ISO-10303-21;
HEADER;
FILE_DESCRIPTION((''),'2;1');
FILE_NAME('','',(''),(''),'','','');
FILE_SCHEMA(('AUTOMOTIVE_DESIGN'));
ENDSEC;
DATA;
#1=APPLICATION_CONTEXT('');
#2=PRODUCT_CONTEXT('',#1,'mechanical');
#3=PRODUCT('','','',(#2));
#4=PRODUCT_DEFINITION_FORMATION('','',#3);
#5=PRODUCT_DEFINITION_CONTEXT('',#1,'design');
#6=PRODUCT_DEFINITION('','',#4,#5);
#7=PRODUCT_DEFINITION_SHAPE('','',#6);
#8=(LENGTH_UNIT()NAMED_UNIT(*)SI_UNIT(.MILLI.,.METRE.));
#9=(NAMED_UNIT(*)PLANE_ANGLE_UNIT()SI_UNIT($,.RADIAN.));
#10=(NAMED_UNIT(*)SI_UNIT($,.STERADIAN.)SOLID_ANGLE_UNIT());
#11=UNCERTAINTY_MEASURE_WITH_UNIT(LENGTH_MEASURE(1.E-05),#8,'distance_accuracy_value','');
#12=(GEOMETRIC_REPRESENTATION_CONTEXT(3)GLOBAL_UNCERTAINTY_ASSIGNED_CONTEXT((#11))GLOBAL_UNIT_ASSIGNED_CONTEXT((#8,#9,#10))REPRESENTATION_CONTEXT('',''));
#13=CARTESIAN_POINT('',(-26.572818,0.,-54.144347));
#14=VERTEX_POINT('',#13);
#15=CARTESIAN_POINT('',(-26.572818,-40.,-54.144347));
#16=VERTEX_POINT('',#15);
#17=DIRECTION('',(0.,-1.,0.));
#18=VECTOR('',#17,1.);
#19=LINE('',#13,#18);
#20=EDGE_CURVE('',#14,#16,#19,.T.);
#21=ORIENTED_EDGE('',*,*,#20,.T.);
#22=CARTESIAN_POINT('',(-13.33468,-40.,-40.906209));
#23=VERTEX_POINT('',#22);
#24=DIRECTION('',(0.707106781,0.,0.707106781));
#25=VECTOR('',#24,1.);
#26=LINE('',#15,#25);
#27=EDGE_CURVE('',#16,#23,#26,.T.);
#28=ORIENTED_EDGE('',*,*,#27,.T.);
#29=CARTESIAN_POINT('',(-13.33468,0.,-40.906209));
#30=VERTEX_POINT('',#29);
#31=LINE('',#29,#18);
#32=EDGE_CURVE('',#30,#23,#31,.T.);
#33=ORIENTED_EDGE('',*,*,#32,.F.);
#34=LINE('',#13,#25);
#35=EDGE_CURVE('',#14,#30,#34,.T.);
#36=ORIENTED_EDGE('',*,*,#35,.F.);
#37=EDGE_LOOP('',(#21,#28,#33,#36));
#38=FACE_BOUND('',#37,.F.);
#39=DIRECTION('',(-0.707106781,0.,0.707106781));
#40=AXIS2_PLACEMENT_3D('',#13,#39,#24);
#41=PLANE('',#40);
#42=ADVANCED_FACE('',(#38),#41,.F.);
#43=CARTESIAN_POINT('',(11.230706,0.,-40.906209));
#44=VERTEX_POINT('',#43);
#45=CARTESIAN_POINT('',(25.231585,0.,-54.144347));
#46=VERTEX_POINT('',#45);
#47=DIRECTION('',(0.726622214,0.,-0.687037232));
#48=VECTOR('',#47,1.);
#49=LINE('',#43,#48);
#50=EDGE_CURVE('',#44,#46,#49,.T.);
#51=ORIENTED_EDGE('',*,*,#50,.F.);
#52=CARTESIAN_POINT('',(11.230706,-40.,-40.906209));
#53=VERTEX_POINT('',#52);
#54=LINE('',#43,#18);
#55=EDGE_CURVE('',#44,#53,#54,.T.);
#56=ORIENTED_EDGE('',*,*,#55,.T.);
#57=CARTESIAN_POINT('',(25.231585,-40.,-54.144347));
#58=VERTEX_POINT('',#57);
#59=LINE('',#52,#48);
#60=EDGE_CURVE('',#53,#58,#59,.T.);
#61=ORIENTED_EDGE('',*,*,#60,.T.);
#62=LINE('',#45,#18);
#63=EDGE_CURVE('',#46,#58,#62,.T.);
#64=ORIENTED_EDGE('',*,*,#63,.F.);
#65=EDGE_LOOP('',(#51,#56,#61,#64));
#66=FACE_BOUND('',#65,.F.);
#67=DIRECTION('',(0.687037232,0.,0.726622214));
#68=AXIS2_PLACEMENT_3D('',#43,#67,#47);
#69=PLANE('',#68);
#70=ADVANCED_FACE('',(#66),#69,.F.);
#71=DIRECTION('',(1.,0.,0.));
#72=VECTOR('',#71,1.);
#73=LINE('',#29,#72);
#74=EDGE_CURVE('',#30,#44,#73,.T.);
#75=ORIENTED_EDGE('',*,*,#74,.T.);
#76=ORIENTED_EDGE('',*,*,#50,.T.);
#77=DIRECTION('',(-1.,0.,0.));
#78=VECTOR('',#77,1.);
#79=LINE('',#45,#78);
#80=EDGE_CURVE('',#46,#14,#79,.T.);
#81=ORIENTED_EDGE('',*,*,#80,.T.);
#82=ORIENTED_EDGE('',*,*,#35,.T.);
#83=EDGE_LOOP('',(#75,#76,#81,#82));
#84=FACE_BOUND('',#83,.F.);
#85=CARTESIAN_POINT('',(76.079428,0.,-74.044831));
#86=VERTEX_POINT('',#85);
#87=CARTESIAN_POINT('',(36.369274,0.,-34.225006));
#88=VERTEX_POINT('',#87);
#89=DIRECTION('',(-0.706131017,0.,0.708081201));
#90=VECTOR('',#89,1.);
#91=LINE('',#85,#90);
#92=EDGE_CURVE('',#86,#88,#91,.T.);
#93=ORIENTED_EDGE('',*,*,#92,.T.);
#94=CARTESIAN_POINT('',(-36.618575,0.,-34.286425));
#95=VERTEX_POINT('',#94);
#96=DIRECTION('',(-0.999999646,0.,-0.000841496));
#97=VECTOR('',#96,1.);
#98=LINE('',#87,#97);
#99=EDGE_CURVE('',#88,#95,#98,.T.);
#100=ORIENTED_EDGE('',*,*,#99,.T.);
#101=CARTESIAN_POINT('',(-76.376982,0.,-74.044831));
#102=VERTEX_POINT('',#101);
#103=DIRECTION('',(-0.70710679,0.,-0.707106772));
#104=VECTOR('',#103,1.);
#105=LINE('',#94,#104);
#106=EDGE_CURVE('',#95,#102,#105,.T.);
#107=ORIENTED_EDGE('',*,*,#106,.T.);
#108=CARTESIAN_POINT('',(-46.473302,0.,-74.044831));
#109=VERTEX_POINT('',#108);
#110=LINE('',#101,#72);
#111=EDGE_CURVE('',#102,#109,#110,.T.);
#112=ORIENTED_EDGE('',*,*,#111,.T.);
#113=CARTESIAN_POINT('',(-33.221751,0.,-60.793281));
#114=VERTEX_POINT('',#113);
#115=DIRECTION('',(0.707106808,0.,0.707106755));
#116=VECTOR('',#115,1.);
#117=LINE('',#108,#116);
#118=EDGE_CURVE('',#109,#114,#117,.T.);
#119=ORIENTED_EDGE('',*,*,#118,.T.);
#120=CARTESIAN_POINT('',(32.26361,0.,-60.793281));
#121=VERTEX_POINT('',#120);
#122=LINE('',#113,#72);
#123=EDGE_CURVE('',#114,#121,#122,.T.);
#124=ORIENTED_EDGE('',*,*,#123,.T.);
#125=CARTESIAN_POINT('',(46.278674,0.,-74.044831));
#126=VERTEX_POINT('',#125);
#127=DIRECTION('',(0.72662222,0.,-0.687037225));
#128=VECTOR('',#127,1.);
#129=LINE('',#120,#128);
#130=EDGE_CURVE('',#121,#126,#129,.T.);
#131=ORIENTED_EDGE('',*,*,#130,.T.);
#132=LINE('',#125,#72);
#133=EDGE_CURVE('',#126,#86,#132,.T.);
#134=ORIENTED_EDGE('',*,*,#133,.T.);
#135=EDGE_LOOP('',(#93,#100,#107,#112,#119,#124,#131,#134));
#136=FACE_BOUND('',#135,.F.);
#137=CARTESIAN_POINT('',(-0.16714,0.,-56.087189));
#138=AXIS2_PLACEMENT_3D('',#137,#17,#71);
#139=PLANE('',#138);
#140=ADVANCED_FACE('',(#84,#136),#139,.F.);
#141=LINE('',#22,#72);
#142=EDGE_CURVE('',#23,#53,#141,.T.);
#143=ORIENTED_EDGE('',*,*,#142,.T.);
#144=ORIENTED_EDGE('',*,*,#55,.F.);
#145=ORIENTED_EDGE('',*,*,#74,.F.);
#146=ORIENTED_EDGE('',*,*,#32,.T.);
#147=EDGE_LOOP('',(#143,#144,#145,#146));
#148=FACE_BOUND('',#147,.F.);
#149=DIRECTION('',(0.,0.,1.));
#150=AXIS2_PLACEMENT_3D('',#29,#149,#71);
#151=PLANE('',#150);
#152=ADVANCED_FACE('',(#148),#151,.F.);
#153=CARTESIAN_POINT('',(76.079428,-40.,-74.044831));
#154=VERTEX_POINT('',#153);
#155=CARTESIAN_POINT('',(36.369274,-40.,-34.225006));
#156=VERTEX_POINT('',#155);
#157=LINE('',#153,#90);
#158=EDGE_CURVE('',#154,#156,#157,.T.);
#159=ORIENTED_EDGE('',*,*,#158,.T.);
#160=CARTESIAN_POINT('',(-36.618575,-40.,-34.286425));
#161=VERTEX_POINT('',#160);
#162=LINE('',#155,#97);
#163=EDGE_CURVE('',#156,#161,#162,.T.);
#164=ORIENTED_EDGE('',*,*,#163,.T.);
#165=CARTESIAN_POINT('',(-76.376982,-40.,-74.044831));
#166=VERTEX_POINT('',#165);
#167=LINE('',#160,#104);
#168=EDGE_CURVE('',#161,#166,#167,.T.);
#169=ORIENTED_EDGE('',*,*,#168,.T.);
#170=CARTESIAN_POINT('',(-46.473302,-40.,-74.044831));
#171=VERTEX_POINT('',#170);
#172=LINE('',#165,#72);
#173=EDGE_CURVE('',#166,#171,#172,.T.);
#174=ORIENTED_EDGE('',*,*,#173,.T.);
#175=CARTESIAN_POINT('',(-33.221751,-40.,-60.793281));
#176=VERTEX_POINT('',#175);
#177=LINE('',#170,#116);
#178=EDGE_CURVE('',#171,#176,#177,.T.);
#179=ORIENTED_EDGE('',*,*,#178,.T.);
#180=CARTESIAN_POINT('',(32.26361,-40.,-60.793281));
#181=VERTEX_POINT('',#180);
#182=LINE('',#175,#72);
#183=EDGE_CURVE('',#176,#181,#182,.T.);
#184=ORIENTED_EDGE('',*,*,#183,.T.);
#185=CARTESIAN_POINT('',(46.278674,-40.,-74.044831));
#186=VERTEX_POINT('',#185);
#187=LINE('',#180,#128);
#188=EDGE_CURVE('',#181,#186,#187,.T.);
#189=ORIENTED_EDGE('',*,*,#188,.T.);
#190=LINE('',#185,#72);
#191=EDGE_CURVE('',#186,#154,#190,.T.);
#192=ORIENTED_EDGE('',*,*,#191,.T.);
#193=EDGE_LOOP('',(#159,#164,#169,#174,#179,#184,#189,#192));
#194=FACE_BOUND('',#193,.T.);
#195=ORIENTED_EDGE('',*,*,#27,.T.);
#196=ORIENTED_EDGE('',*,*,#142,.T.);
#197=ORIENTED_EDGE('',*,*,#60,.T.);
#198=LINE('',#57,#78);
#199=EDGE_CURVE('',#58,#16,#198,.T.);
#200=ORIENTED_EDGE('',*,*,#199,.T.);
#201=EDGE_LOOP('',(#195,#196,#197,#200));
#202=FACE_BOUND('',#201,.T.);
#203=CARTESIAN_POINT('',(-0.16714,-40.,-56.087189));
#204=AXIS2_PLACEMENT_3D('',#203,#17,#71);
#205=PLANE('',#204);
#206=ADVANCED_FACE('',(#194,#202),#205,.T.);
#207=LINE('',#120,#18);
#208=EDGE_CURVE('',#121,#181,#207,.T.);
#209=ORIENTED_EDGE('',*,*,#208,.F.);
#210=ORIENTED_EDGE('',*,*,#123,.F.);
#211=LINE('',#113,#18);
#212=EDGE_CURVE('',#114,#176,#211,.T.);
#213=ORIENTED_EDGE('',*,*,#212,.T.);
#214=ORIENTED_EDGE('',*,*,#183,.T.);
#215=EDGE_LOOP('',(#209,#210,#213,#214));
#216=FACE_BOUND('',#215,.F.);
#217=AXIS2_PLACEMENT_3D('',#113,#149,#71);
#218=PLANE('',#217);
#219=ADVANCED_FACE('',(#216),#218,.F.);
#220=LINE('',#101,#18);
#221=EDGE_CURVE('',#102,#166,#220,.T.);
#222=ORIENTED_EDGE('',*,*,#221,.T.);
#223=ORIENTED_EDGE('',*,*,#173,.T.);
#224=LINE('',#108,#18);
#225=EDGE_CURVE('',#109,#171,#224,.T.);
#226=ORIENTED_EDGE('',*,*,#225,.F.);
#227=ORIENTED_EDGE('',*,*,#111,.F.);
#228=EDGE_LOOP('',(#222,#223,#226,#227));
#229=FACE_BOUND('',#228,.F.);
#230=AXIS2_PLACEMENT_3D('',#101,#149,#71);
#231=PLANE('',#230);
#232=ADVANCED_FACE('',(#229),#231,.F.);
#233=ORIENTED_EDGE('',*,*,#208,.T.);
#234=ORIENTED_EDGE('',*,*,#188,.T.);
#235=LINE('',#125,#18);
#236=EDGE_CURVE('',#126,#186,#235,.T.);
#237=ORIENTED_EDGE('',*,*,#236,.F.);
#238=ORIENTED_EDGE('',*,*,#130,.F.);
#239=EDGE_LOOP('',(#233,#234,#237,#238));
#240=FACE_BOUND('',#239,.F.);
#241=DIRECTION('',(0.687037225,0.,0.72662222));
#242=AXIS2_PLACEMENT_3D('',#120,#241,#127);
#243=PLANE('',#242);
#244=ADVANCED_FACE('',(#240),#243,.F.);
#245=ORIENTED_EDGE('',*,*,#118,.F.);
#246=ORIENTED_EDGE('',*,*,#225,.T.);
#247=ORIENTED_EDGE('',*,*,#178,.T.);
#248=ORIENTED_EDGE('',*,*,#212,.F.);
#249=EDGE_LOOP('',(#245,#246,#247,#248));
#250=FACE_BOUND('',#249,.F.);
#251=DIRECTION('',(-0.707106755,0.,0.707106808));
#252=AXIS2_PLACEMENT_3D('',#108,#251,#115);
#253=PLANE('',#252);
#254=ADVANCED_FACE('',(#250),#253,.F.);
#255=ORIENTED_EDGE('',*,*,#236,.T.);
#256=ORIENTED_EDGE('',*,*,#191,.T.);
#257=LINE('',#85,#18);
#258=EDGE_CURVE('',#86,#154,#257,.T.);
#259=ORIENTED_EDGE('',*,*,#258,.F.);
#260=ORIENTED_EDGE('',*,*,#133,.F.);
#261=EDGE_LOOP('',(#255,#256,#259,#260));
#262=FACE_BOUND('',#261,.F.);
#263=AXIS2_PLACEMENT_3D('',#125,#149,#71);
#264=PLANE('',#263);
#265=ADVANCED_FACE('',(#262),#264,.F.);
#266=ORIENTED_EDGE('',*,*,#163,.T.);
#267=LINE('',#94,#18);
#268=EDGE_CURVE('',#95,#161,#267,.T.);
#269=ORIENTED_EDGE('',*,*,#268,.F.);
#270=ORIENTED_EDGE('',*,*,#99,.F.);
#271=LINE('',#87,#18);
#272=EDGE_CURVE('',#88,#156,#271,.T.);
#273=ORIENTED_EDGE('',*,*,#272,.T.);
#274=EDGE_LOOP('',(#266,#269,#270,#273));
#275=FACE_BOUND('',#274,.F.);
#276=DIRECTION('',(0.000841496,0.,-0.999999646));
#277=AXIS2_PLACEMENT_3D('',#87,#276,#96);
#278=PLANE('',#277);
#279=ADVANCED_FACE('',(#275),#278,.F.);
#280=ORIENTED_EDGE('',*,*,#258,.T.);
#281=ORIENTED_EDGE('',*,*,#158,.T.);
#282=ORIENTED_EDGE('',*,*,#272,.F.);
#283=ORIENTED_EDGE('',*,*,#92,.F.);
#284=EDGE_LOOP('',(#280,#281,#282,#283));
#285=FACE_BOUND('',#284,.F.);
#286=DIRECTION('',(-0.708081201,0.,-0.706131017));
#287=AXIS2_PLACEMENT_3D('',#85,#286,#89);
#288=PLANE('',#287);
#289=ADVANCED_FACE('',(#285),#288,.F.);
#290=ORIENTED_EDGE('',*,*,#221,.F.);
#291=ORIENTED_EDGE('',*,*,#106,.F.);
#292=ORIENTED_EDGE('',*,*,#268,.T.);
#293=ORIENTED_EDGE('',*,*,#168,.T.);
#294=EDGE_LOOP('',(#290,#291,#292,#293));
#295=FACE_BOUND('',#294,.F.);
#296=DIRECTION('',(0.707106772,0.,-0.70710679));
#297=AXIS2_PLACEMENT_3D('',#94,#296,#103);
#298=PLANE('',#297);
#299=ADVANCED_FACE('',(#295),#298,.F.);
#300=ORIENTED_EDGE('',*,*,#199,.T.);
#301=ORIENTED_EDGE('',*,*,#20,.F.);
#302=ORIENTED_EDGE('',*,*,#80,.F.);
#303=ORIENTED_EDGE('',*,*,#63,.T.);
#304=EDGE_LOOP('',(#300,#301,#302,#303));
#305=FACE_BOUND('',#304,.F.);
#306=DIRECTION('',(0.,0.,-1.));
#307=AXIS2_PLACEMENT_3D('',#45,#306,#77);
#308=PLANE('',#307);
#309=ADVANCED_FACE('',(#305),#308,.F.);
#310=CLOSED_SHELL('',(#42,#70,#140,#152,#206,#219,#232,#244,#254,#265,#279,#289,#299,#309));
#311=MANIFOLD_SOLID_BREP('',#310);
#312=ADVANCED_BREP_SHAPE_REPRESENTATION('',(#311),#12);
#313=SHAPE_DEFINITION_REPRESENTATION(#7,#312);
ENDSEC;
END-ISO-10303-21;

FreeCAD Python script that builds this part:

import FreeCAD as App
import Part
import Sketcher
from FreeCAD import Vector
Q = App.Units.Quantity


def add_polygon(sketch, points):
    """Adds a closed chain of lines whose ends are joined by coincident constraints."""
    first, n = sketch.GeometryCount, len(points)
    for a, b in zip(points, points[1:] + points[:1]):
        sketch.addGeometry(Part.LineSegment(App.Vector(*a, 0), App.Vector(*b, 0)), False)
    for i in range(n):
        sketch.addConstraint(Sketcher.Constraint("Coincident", first + i, 2, first + (i + 1) % n, 1))

doc = App.newDocument("Part")
params = doc.addObject("Spreadsheet::Sheet", "Params")
for row, (alias, value) in enumerate([
    ("pad1_length", "40 mm"),
], start=1):
    params.set(f"A{row}", alias)
    params.set(f"B{row}", "=" + value)
    params.setAlias(f"B{row}", alias)

body = doc.addObject("PartDesign::Body", "Body")

# Sketch on XZ plane
sketch1 = body.newObject("Sketcher::SketchObject", "Sketch")
sketch1.AttachmentSupport = (doc.getObject("XZ_Plane"), [""])
sketch1.MapMode = "FlatFace"
add_polygon(sketch1, [(46.278674, -74.044831), (76.079428, -74.044831), (36.369274, -34.225006), (-36.618575, -34.286425), (-76.376982, -74.044831), (-46.473302, -74.044831), (-33.221751, -60.793281), (32.26361, -60.793281)])  # lines 0-7
add_polygon(sketch1, [(25.231585, -54.144347), (-26.572818, -54.144347), (-13.33468, -40.906209), (11.230706, -40.906209)])  # lines 8-11
sketch1.addConstraint([
    Sketcher.Constraint("Horizontal", 0),
    Sketcher.Constraint("Horizontal", 4),
    Sketcher.Constraint("Horizontal", 6),
    Sketcher.Constraint("Horizontal", 8),
    Sketcher.Constraint("Horizontal", 10),
    Sketcher.Constraint("Parallel", 3, 5),
    Sketcher.Constraint("Parallel", 5, 9),
    Sketcher.Constraint("Parallel", 7, 11),
    Sketcher.Constraint("Horizontal", 0, 2, 3, 2),
    Sketcher.Constraint("Angle", 3, Q("-135.000001 deg")),
    Sketcher.Constraint("DistanceX", 4, 1, 4, 2, Q("29.90368 mm")),
    Sketcher.Constraint("DistanceX", 6, 1, 6, 2, Q("65.485361 mm")),
    Sketcher.Constraint("DistanceX", 4, 2, -1, 1, Q("46.473302 mm")),
    Sketcher.Constraint("DistanceX", 1, 2, 7, 2, Q("9.9094 mm")),
    Sketcher.Constraint("Distance", 1, Q("56.236241 mm")),
    Sketcher.Constraint("DistanceX", 0, 1, 0, 2, Q("29.800754 mm")),
    Sketcher.Constraint("DistanceX", 8, 2, 8, 1, Q("51.804403 mm")),
    Sketcher.Constraint("DistanceX", 10, 1, 10, 2, Q("24.565386 mm")),
    Sketcher.Constraint("DistanceY", 0, 2, -1, 1, Q("74.044831 mm")),
    Sketcher.Constraint("DistanceX", 5, 2, -1, 1, Q("33.221751 mm")),
    Sketcher.Constraint("DistanceX", 8, 2, -1, 1, Q("26.572818 mm")),
    Sketcher.Constraint("DistanceX", 9, 2, -1, 1, Q("13.33468 mm")),
    Sketcher.Constraint("DistanceY", 9, 2, -1, 1, Q("40.906209 mm")),
    Sketcher.Constraint("DistanceX", 2, 2, 1, 2, Q("72.987849 mm")),
])
pad1 = body.newObject("PartDesign::Pad", "Pad")
pad1.Profile = sketch1
pad1.setExpression("Length", "Params.pad1_length")

doc.recompute()
